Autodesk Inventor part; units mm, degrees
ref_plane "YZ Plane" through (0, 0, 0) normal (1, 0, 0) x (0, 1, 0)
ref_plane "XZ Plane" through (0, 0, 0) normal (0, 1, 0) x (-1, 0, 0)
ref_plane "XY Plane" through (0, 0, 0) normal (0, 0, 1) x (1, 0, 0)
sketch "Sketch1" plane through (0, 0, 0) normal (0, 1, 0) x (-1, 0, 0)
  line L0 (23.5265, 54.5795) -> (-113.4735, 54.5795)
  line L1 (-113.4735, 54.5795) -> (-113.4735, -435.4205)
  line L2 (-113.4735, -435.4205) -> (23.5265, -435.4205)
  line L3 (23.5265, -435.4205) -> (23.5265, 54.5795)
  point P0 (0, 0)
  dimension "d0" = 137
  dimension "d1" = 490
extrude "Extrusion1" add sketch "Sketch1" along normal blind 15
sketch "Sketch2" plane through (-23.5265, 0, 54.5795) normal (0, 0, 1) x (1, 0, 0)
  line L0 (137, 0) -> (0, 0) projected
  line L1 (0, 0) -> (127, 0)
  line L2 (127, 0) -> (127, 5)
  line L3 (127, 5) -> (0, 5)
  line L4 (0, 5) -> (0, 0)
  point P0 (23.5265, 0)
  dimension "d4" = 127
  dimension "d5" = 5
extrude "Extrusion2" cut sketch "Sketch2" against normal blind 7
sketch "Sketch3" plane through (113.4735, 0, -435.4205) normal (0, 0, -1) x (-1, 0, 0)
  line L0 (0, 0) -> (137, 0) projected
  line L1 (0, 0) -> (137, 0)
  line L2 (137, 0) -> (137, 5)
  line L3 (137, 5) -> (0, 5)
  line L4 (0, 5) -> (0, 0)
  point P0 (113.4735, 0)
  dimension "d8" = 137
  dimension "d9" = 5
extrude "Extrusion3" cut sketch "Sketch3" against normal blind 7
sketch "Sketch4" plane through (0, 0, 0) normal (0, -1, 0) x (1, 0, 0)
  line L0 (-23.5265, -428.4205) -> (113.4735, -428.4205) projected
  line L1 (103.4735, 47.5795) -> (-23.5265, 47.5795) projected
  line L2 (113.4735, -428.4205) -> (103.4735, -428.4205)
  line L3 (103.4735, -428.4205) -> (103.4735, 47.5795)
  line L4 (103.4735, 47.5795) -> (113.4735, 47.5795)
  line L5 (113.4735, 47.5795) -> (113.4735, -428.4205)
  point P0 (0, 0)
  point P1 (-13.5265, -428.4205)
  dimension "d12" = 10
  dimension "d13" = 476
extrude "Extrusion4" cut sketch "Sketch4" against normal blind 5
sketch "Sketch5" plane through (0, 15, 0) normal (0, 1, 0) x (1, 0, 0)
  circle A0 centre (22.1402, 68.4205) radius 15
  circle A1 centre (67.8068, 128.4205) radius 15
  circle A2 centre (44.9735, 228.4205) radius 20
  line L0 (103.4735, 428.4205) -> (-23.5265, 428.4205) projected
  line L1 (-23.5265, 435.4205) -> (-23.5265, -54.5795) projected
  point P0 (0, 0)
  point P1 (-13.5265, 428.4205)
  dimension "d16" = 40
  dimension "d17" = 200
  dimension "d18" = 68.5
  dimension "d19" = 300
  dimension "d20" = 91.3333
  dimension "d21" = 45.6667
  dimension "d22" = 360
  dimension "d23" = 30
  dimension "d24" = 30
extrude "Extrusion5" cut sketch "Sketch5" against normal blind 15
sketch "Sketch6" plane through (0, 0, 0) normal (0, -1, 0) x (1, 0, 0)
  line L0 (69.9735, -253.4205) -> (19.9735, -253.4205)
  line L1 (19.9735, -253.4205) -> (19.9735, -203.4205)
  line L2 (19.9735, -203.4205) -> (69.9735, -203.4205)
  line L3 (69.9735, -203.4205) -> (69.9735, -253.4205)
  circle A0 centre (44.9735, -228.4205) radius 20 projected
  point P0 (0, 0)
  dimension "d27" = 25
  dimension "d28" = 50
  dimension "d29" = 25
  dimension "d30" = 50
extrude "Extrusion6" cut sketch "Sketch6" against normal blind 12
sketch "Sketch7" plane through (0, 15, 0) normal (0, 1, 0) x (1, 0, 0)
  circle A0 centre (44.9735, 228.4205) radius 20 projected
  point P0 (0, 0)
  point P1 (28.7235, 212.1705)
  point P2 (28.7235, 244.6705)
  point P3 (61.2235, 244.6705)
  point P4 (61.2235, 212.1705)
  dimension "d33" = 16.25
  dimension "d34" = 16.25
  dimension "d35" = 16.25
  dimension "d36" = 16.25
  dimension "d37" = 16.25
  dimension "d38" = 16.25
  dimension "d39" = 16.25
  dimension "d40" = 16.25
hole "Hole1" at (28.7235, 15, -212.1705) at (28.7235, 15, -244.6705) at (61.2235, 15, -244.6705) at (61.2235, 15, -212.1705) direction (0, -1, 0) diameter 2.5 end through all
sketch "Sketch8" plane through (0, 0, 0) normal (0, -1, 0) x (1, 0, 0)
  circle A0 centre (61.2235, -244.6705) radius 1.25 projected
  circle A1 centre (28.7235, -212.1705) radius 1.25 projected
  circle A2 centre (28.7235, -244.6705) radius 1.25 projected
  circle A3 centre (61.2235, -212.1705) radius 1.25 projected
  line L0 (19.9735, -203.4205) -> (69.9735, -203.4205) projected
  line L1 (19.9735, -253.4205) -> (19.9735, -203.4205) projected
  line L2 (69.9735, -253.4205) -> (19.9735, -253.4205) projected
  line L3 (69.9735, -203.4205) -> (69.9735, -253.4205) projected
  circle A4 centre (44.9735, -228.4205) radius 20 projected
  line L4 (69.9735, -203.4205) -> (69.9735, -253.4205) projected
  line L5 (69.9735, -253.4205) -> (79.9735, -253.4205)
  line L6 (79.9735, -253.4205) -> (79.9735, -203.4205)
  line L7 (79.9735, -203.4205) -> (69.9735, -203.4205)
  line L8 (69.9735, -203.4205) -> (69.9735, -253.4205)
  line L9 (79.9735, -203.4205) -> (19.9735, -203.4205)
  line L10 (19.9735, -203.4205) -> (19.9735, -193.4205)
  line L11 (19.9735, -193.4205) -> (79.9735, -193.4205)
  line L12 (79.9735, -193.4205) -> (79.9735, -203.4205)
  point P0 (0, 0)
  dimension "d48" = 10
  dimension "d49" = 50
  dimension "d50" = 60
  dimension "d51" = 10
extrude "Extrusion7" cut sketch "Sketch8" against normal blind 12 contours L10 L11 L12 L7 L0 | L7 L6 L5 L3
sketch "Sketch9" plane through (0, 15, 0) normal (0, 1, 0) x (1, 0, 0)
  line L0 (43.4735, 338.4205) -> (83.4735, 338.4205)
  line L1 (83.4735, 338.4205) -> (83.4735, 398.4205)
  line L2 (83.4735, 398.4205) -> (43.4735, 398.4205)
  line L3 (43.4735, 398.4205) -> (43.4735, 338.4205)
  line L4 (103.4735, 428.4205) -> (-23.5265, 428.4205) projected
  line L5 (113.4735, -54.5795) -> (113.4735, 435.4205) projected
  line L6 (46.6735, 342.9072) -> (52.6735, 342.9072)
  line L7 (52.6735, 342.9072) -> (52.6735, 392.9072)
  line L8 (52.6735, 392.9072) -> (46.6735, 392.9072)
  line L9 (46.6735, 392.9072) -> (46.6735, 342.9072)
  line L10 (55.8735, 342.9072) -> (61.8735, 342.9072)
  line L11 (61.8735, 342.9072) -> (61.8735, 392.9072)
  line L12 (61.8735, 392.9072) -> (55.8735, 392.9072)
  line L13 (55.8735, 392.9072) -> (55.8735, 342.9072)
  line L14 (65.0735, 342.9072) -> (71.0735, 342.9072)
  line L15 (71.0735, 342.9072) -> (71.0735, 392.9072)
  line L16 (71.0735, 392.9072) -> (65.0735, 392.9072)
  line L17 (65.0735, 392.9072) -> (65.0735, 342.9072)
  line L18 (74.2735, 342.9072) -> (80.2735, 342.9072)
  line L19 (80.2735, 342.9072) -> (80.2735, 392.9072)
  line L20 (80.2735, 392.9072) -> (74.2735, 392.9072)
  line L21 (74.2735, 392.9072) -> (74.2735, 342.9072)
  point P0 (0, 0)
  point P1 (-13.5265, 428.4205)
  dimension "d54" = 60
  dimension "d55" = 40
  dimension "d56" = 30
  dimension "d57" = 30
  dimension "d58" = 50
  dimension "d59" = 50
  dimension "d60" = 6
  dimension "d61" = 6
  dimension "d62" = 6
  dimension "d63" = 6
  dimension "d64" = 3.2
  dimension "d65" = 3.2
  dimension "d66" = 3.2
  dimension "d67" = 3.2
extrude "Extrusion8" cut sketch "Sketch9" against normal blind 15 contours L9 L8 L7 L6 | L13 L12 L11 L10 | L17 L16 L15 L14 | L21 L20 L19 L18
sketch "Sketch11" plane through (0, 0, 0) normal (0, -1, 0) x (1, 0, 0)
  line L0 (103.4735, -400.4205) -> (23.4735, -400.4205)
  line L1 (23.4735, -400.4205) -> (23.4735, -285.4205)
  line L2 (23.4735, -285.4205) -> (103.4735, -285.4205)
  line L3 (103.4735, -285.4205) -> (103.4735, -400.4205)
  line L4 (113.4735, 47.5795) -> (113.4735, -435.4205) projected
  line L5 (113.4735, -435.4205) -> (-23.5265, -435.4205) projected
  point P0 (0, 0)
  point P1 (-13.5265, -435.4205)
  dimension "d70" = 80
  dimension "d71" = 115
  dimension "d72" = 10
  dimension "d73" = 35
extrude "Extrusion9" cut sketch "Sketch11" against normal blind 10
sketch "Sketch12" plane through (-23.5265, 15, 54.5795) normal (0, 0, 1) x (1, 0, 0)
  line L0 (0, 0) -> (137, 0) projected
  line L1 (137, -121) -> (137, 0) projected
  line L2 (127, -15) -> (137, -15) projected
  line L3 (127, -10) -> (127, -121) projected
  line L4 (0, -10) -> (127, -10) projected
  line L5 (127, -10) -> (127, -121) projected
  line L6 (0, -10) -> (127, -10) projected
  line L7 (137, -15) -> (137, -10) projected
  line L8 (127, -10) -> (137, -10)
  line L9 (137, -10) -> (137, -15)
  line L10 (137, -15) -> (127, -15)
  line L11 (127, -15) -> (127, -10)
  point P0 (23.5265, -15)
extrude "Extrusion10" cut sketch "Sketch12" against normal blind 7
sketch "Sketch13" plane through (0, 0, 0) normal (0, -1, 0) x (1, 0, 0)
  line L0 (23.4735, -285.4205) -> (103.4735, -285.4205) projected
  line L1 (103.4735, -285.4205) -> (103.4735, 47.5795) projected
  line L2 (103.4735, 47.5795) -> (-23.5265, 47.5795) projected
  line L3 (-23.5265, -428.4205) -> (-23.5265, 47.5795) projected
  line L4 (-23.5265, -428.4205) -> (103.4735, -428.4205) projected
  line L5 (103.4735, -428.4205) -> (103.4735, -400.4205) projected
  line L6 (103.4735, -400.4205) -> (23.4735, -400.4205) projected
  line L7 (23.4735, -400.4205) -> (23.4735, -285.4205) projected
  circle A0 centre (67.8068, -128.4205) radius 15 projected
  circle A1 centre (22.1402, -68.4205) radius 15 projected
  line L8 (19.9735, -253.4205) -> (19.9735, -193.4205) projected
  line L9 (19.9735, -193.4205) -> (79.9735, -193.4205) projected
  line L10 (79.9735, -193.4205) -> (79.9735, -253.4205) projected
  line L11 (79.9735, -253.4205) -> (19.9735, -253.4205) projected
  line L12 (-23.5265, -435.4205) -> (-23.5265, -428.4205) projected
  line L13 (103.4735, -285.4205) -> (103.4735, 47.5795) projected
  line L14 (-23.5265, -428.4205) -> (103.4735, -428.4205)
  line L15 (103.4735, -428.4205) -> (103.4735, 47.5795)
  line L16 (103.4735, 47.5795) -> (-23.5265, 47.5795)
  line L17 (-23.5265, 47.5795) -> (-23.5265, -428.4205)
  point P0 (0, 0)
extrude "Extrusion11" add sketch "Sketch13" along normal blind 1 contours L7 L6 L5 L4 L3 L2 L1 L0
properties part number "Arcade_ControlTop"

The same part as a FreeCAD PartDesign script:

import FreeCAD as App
import Part
import Sketcher
from FreeCAD import Vector

doc = App.newDocument("Part")
body = doc.addObject("PartDesign::Body", "Body")

# Sketch on XZ plane
sketch1 = body.newObject("Sketcher::SketchObject", "Sketch")
sketch1.AttachmentSupport = (doc.getObject("XZ_Plane"), [""])
sketch1.MapMode = "FlatFace"
sketch1.addGeometry([
    Part.LineSegment(Vector(-24, -435, 0), Vector(-24, 55, 0)),
    Part.LineSegment(Vector(-24, 55, 0), Vector(113, 55, 0)),
    Part.LineSegment(Vector(113, 55, 0), Vector(113, -435, 0)),
    Part.LineSegment(Vector(113, -435, 0), Vector(-24, -435, 0)),
], False)
sketch1.addConstraint([
    Sketcher.Constraint("Coincident", 0, 2, 1, 1),
    Sketcher.Constraint("Coincident", 1, 2, 2, 1),
    Sketcher.Constraint("Coincident", 2, 2, 3, 1),
    Sketcher.Constraint("Coincident", 3, 2, 0, 1),
    Sketcher.Constraint("Vertical", 0),
    Sketcher.Constraint("Horizontal", 1),
    Sketcher.Constraint("Vertical", 2),
    Sketcher.Constraint("Horizontal", 3),
    Sketcher.Constraint("DistanceX", 1, 1, 1, 2, 137.0),
    Sketcher.Constraint("DistanceY", 0, 1, 0, 2, 490.0),
    Sketcher.Constraint("DistanceX", 0, 2, -1, 1, 23.5265),
    Sketcher.Constraint("DistanceY", -1, 1, 0, 2, 54.5795),
])
pad1 = body.newObject("PartDesign::Pad", "Pad")
pad1.Profile = sketch1
pad1.Length = 15
pad1.Reversed = True

# Sketch on XY plane
sketch2 = body.newObject("Sketcher::SketchObject", "Sketch001")
sketch2.AttachmentSupport = (doc.getObject("XY_Plane"), [""])
sketch2.MapMode = "FlatFace"
sketch2.AttachmentOffset = App.Placement(Vector(0, 0, 54.5795), App.Rotation())
sketch2.addGeometry([
    Part.LineSegment(Vector(-24, 0, 0), Vector(103, 0, 0)),
    Part.LineSegment(Vector(103, 0, 0), Vector(103, 5, 0)),
    Part.LineSegment(Vector(103, 5, 0), Vector(-24, 5, 0)),
    Part.LineSegment(Vector(-24, 5, 0), Vector(-24, 0, 0)),
], False)
sketch2.addConstraint([
    Sketcher.Constraint("Coincident", 0, 2, 1, 1),
    Sketcher.Constraint("Coincident", 1, 2, 2, 1),
    Sketcher.Constraint("Coincident", 2, 2, 3, 1),
    Sketcher.Constraint("Coincident", 3, 2, 0, 1),
    Sketcher.Constraint("Horizontal", 0),
    Sketcher.Constraint("Vertical", 1),
    Sketcher.Constraint("Horizontal", 2),
    Sketcher.Constraint("Vertical", 3),
    Sketcher.Constraint("PointOnObject", 0, 2, -1),
    Sketcher.Constraint("DistanceX", 0, 1, 0, 2, 127.0),
    Sketcher.Constraint("DistanceY", 1, 1, 1, 2, 5.0),
    Sketcher.Constraint("DistanceX", -1, 1, 0, 2, 103.4735),
])
pocket1 = body.newObject("PartDesign::Pocket", "Pocket")
pocket1.Profile = sketch2
pocket1.Length = 7

# Sketch on XY plane
sketch3 = body.newObject("Sketcher::SketchObject", "Sketch002")
sketch3.AttachmentSupport = (doc.getObject("XY_Plane"), [""])
sketch3.MapMode = "FlatFace"
sketch3.AttachmentOffset = App.Placement(Vector(0, 0, -435.4205), App.Rotation())
sketch3.addGeometry([
    Part.LineSegment(Vector(113, 5, 0), Vector(113, 0, 0)),
    Part.LineSegment(Vector(113, 0, 0), Vector(-24, 0, 0)),
    Part.LineSegment(Vector(-24, 0, 0), Vector(-24, 5, 0)),
    Part.LineSegment(Vector(-24, 5, 0), Vector(113, 5, 0)),
], False)
sketch3.addConstraint([
    Sketcher.Constraint("Coincident", 0, 2, 1, 1),
    Sketcher.Constraint("Coincident", 1, 2, 2, 1),
    Sketcher.Constraint("Coincident", 2, 2, 3, 1),
    Sketcher.Constraint("Coincident", 3, 2, 0, 1),
    Sketcher.Constraint("Vertical", 0),
    Sketcher.Constraint("Horizontal", 1),
    Sketcher.Constraint("Vertical", 2),
    Sketcher.Constraint("Horizontal", 3),
    Sketcher.Constraint("PointOnObject", 0, 2, -1),
    Sketcher.Constraint("DistanceX", 1, 2, 1, 1, 137.0),
    Sketcher.Constraint("DistanceY", 0, 2, 0, 1, 5.0),
    Sketcher.Constraint("DistanceX", -1, 1, 0, 2, 113.4735),
])
pocket2 = body.newObject("PartDesign::Pocket", "Pocket001")
pocket2.Profile = sketch3
pocket2.Length = 7
pocket2.Reversed = True

# Sketch on XZ plane
sketch4 = body.newObject("Sketcher::SketchObject", "Sketch003")
sketch4.AttachmentSupport = (doc.getObject("XZ_Plane"), [""])
sketch4.MapMode = "FlatFace"
sketch4.addGeometry([
    Part.LineSegment(Vector(103, 48, 0), Vector(103, -428, 0)),
    Part.LineSegment(Vector(103, -428, 0), Vector(113, -428, 0)),
    Part.LineSegment(Vector(113, -428, 0), Vector(113, 48, 0)),
    Part.LineSegment(Vector(113, 48, 0), Vector(103, 48, 0)),
], False)
sketch4.addConstraint([
    Sketcher.Constraint("Coincident", 0, 2, 1, 1),
    Sketcher.Constraint("Coincident", 1, 2, 2, 1),
    Sketcher.Constraint("Coincident", 2, 2, 3, 1),
    Sketcher.Constraint("Coincident", 3, 2, 0, 1),
    Sketcher.Constraint("Vertical", 0),
    Sketcher.Constraint("Horizontal", 1),
    Sketcher.Constraint("Vertical", 2),
    Sketcher.Constraint("Horizontal", 3),
    Sketcher.Constraint("DistanceX", 1, 1, 1, 2, 10.0),
    Sketcher.Constraint("DistanceY", 0, 2, 0, 1, 476.0),
    Sketcher.Constraint("DistanceX", -1, 1, 0, 2, 103.4735),
    Sketcher.Constraint("DistanceY", 0, 2, -1, 1, 428.4205),
])
pocket3 = body.newObject("PartDesign::Pocket", "Pocket002")
pocket3.Profile = sketch4
pocket3.Length = 5

# Sketch on XZ plane
sketch5 = body.newObject("Sketcher::SketchObject", "Sketch004")
sketch5.AttachmentSupport = (doc.getObject("XZ_Plane"), [""])
sketch5.MapMode = "FlatFace"
sketch5.AttachmentOffset = App.Placement(Vector(0, 0, -15), App.Rotation())
sketch5.addGeometry([
    Part.Circle(Vector(22, -68, 0), Vector(0, 0, 1), 15),
    Part.Circle(Vector(68, -128, 0), Vector(0, 0, 1), 15),
    Part.Circle(Vector(45, -228, 0), Vector(0, 0, 1), 20),
], False)
sketch5.addConstraint([
    Sketcher.Constraint("Equal", 0, 1),
    Sketcher.Constraint("Diameter", 0, 30.0),
    Sketcher.Constraint("Diameter", 2, 40.0),
    Sketcher.Constraint("DistanceY", 1, 3, 0, 3, 60.0),
    Sketcher.Constraint("DistanceY", 2, 3, 1, 3, 100.0),
    Sketcher.Constraint("DistanceX", 0, 3, 1, 3, 45.6666),
    Sketcher.Constraint("DistanceX", -1, 1, 0, 3, 22.1402),
    Sketcher.Constraint("DistanceY", 0, 3, -1, 1, 68.4205),
    Sketcher.Constraint("DistanceX", -1, 1, 2, 3, 44.9735),
])
pocket4 = body.newObject("PartDesign::Pocket", "Pocket003")
pocket4.Profile = sketch5
pocket4.Length = 15
pocket4.Reversed = True

# Sketch on XZ plane
sketch6 = body.newObject("Sketcher::SketchObject", "Sketch005")
sketch6.AttachmentSupport = (doc.getObject("XZ_Plane"), [""])
sketch6.MapMode = "FlatFace"
sketch6.addGeometry([
    Part.LineSegment(Vector(20, -253, 0), Vector(70, -253, 0)),  # 0
    Part.LineSegment(Vector(70, -253, 0), Vector(70, -203, 0)),  # 1
    Part.LineSegment(Vector(70, -203, 0), Vector(20, -203, 0)),  # 2
    Part.LineSegment(Vector(20, -203, 0), Vector(20, -253, 0)),  # 3
    Part.Circle(Vector(45, -228, 0), Vector(0, 0, 1), 20),  # 4
], False)
sketch6.addConstraint([
    Sketcher.Constraint("Coincident", 0, 2, 1, 1),
    Sketcher.Constraint("Coincident", 1, 2, 2, 1),
    Sketcher.Constraint("Coincident", 2, 2, 3, 1),
    Sketcher.Constraint("Coincident", 3, 2, 0, 1),
    Sketcher.Constraint("Horizontal", 0),
    Sketcher.Constraint("Vertical", 1),
    Sketcher.Constraint("Horizontal", 2),
    Sketcher.Constraint("Vertical", 3),
    Sketcher.Constraint("Equal", 2, 1),
    Sketcher.Constraint("DistanceX", 0, 1, 0, 2, 50.0),
    Sketcher.Constraint("Diameter", 4, 40.0),
    Sketcher.Constraint("DistanceX", 4, 3, 0, 2, 25.0),
    Sketcher.Constraint("DistanceY", 0, 2, 4, 3, 25.0),
    Sketcher.Constraint("DistanceX", -1, 1, 4, 3, 44.9735),
    Sketcher.Constraint("DistanceY", 4, 3, -1, 1, 228.4205),
])
pocket5 = body.newObject("PartDesign::Pocket", "Pocket004")
pocket5.Profile = sketch6
pocket5.Length = 12

# Sketch on XZ plane
sketch7 = body.newObject("Sketcher::SketchObject", "Sketch006")
sketch7.AttachmentSupport = (doc.getObject("XZ_Plane"), [""])
sketch7.MapMode = "FlatFace"
sketch7.AttachmentOffset = App.Placement(Vector(0, 0, -15), App.Rotation())
sketch7.addGeometry([
    Part.Circle(Vector(28.7, -212.2, 0), Vector(0, 0, 1), 1.2),
    Part.Circle(Vector(28.7, -244.7, 0), Vector(0, 0, 1), 1.2),
    Part.Circle(Vector(61.2, -244.7, 0), Vector(0, 0, 1), 1.2),
    Part.Circle(Vector(61.2, -212.2, 0), Vector(0, 0, 1), 1.2),
], False)
sketch7.addConstraint([
    Sketcher.Constraint("Equal", 0, 1),
    Sketcher.Constraint("Equal", 1, 2),
    Sketcher.Constraint("Equal", 2, 3),
    Sketcher.Constraint("Horizontal", 1, 3, 2, 3),
    Sketcher.Constraint("Horizontal", 0, 3, 3, 3),
    Sketcher.Constraint("Vertical", 0, 3, 1, 3),
    Sketcher.Constraint("Vertical", 2, 3, 3, 3),
    Sketcher.Constraint("Diameter", 0, 2.5),
    Sketcher.Constraint("DistanceY", 1, 3, 0, 3, 32.5),
    Sketcher.Constraint("DistanceX", 1, 3, 2, 3, 32.5),
    Sketcher.Constraint("DistanceX", -1, 1, 0, 3, 28.7235),
    Sketcher.Constraint("DistanceY", 0, 3, -1, 1, 212.1705),
])
doc.recompute()
hole = body.newObject("PartDesign::Hole", "Hole")
hole.Profile = sketch7
hole.ThreadType = "None"
hole.Diameter = 2.5
hole.DepthType = "ThroughAll"
hole.Reversed = True

# Sketch on XZ plane
sketch8 = body.newObject("Sketcher::SketchObject", "Sketch007")
sketch8.AttachmentSupport = (doc.getObject("XZ_Plane"), [""])
sketch8.MapMode = "FlatFace"
sketch8.addGeometry([
    Part.LineSegment(Vector(20, -193, 0), Vector(20, -203, 0)),  # 0
    Part.LineSegment(Vector(20, -203, 0), Vector(70, -203, 0)),  # 1
    Part.LineSegment(Vector(70, -203, 0), Vector(70, -253, 0)),  # 2
    Part.LineSegment(Vector(70, -253, 0), Vector(80, -253, 0)),  # 3
    Part.LineSegment(Vector(80, -253, 0), Vector(80, -193, 0)),  # 4
    Part.LineSegment(Vector(80, -193, 0), Vector(20, -193, 0)),  # 5
], False)
sketch8.addConstraint([
    Sketcher.Constraint("Coincident", 0, 2, 1, 1),
    Sketcher.Constraint("Coincident", 1, 2, 2, 1),
    Sketcher.Constraint("Coincident", 2, 2, 3, 1),
    Sketcher.Constraint("Coincident", 3, 2, 4, 1),
    Sketcher.Constraint("Coincident", 4, 2, 5, 1),
    Sketcher.Constraint("Coincident", 5, 2, 0, 1),
    Sketcher.Constraint("Vertical", 0),
    Sketcher.Constraint("Horizontal", 1),
    Sketcher.Constraint("Vertical", 2),
    Sketcher.Constraint("Horizontal", 3),
    Sketcher.Constraint("Vertical", 4),
    Sketcher.Constraint("Horizontal", 5),
    Sketcher.Constraint("Equal", 3, 0),
    Sketcher.Constraint("Equal", 1, 2),
    Sketcher.Constraint("DistanceX", 1, 1, 1, 2, 50.0),
    Sketcher.Constraint("DistanceX", 3, 1, 3, 2, 10.0),
    Sketcher.Constraint("DistanceX", -1, 1, 0, 2, 19.9735),
    Sketcher.Constraint("DistanceY", 0, 2, -1, 1, 203.4205),
])
pocket6 = body.newObject("PartDesign::Pocket", "Pocket005")
pocket6.Profile = sketch8
pocket6.Length = 12

# Sketch on XZ plane
sketch9 = body.newObject("Sketcher::SketchObject", "Sketch008")
sketch9.AttachmentSupport = (doc.getObject("XZ_Plane"), [""])
sketch9.MapMode = "FlatFace"
sketch9.AttachmentOffset = App.Placement(Vector(0, 0, -15), App.Rotation())
sketch9.addGeometry([
    Part.LineSegment(Vector(47, -393, 0), Vector(47, -343, 0)),  # 0
    Part.LineSegment(Vector(47, -343, 0), Vector(53, -343, 0)),  # 1
    Part.LineSegment(Vector(53, -343, 0), Vector(53, -393, 0)),  # 2
    Part.LineSegment(Vector(53, -393, 0), Vector(47, -393, 0)),  # 3
    Part.LineSegment(Vector(56, -393, 0), Vector(56, -343, 0)),  # 4
    Part.LineSegment(Vector(56, -343, 0), Vector(62, -343, 0)),  # 5
    Part.LineSegment(Vector(62, -343, 0), Vector(62, -393, 0)),  # 6
    Part.LineSegment(Vector(62, -393, 0), Vector(56, -393, 0)),  # 7
    Part.LineSegment(Vector(65, -393, 0), Vector(65, -343, 0)),  # 8
    Part.LineSegment(Vector(65, -343, 0), Vector(71, -343, 0)),  # 9
    Part.LineSegment(Vector(71, -343, 0), Vector(71, -393, 0)),  # 10
    Part.LineSegment(Vector(71, -393, 0), Vector(65, -393, 0)),  # 11
    Part.LineSegment(Vector(74, -393, 0), Vector(74, -343, 0)),  # 12
    Part.LineSegment(Vector(74, -343, 0), Vector(80, -343, 0)),  # 13
    Part.LineSegment(Vector(80, -343, 0), Vector(80, -393, 0)),  # 14
    Part.LineSegment(Vector(80, -393, 0), Vector(74, -393, 0)),  # 15
], False)
sketch9.addConstraint([
    Sketcher.Constraint("Coincident", 0, 2, 1, 1),
    Sketcher.Constraint("Coincident", 1, 2, 2, 1),
    Sketcher.Constraint("Coincident", 2, 2, 3, 1),
    Sketcher.Constraint("Coincident", 3, 2, 0, 1),
    Sketcher.Constraint("Coincident", 4, 2, 5, 1),
    Sketcher.Constraint("Coincident", 5, 2, 6, 1),
    Sketcher.Constraint("Coincident", 6, 2, 7, 1),
    Sketcher.Constraint("Coincident", 7, 2, 4, 1),
    Sketcher.Constraint("Coincident", 8, 2, 9, 1),
    Sketcher.Constraint("Coincident", 9, 2, 10, 1),
    Sketcher.Constraint("Coincident", 10, 2, 11, 1),
    Sketcher.Constraint("Coincident", 11, 2, 8, 1),
    Sketcher.Constraint("Coincident", 12, 2, 13, 1),
    Sketcher.Constraint("Coincident", 13, 2, 14, 1),
    Sketcher.Constraint("Coincident", 14, 2, 15, 1),
    Sketcher.Constraint("Coincident", 15, 2, 12, 1),
    Sketcher.Constraint("Vertical", 0),
    Sketcher.Constraint("Horizontal", 1),
    Sketcher.Constraint("Vertical", 2),
    Sketcher.Constraint("Horizontal", 3),
    Sketcher.Constraint("Vertical", 4),
    Sketcher.Constraint("Horizontal", 5),
    Sketcher.Constraint("Vertical", 6),
    Sketcher.Constraint("Horizontal", 7),
    Sketcher.Constraint("Vertical", 8),
    Sketcher.Constraint("Horizontal", 9),
    Sketcher.Constraint("Vertical", 10),
    Sketcher.Constraint("Horizontal", 11),
    Sketcher.Constraint("Vertical", 12),
    Sketcher.Constraint("Horizontal", 13),
    Sketcher.Constraint("Vertical", 14),
    Sketcher.Constraint("Horizontal", 15),
    Sketcher.Constraint("Horizontal", 1, 2, 4, 2),
    Sketcher.Constraint("Horizontal", 3, 2, 6, 2),
    Sketcher.Constraint("Horizontal", 5, 2, 8, 2),
    Sketcher.Constraint("Horizontal", 7, 2, 10, 2),
    Sketcher.Constraint("Horizontal", 9, 2, 12, 2),
    Sketcher.Constraint("Horizontal", 11, 2, 14, 2),
    Sketcher.Constraint("Equal", 3, 5),
    Sketcher.Constraint("Equal", 7, 9),
    Sketcher.Constraint("Equal", 11, 13),
    Sketcher.Constraint("DistanceX", 1, 1, 1, 2, 6.0),
    Sketcher.Constraint("DistanceY", 0, 1, 0, 2, 50.0),
    Sketcher.Constraint("DistanceX", 1, 2, 4, 2, 3.2),
    Sketcher.Constraint("DistanceX", 5, 2, 8, 2, 3.2),
    Sketcher.Constraint("DistanceX", 9, 2, 12, 2, 3.2),
    Sketcher.Constraint("DistanceX", -1, 1, 0, 2, 46.6735),
    Sketcher.Constraint("DistanceY", 0, 2, -1, 1, 342.9072),
])
pocket7 = body.newObject("PartDesign::Pocket", "Pocket006")
pocket7.Profile = sketch9
pocket7.Length = 15
pocket7.Reversed = True

# Sketch on XZ plane
sketch10 = body.newObject("Sketcher::SketchObject", "Sketch009")
sketch10.AttachmentSupport = (doc.getObject("XZ_Plane"), [""])
sketch10.MapMode = "FlatFace"
sketch10.addGeometry([
    Part.LineSegment(Vector(23, -400, 0), Vector(103, -400, 0)),
    Part.LineSegment(Vector(103, -400, 0), Vector(103, -285, 0)),
    Part.LineSegment(Vector(103, -285, 0), Vector(23, -285, 0)),
    Part.LineSegment(Vector(23, -285, 0), Vector(23, -400, 0)),
], False)
sketch10.addConstraint([
    Sketcher.Constraint("Coincident", 0, 2, 1, 1),
    Sketcher.Constraint("Coincident", 1, 2, 2, 1),
    Sketcher.Constraint("Coincident", 2, 2, 3, 1),
    Sketcher.Constraint("Coincident", 3, 2, 0, 1),
    Sketcher.Constraint("Horizontal", 0),
    Sketcher.Constraint("Vertical", 1),
    Sketcher.Constraint("Horizontal", 2),
    Sketcher.Constraint("Vertical", 3),
    Sketcher.Constraint("DistanceX", 0, 1, 0, 2, 80.0),
    Sketcher.Constraint("DistanceY", 1, 1, 1, 2, 115.0),
    Sketcher.Constraint("DistanceX", -1, 1, 0, 2, 103.4735),
    Sketcher.Constraint("DistanceY", 0, 2, -1, 1, 400.4205),
])
pocket8 = body.newObject("PartDesign::Pocket", "Pocket007")
pocket8.Profile = sketch10
pocket8.Length = 10

# Sketch on XY plane
sketch11 = body.newObject("Sketcher::SketchObject", "Sketch010")
sketch11.AttachmentSupport = (doc.getObject("XY_Plane"), [""])
sketch11.MapMode = "FlatFace"
sketch11.AttachmentOffset = App.Placement(Vector(0, 0, 54.5795), App.Rotation())
sketch11.addGeometry([
    Part.LineSegment(Vector(103, 0, 0), Vector(113, 0, 0)),
    Part.LineSegment(Vector(113, 0, 0), Vector(113, 5, 0)),
    Part.LineSegment(Vector(113, 5, 0), Vector(103, 5, 0)),
    Part.LineSegment(Vector(103, 5, 0), Vector(103, 0, 0)),
], False)
sketch11.addConstraint([
    Sketcher.Constraint("Coincident", 0, 2, 1, 1),
    Sketcher.Constraint("Coincident", 1, 2, 2, 1),
    Sketcher.Constraint("Coincident", 2, 2, 3, 1),
    Sketcher.Constraint("Coincident", 3, 2, 0, 1),
    Sketcher.Constraint("Horizontal", 0),
    Sketcher.Constraint("Vertical", 1),
    Sketcher.Constraint("Horizontal", 2),
    Sketcher.Constraint("Vertical", 3),
    Sketcher.Constraint("PointOnObject", 0, 2, -1),
    Sketcher.Constraint("DistanceX", 0, 1, 0, 2, 10.0),
    Sketcher.Constraint("DistanceY", 1, 1, 1, 2, 5.0),
    Sketcher.Constraint("DistanceX", -1, 1, 0, 2, 113.4735),
])
pocket9 = body.newObject("PartDesign::Pocket", "Pocket008")
pocket9.Profile = sketch11
pocket9.Length = 7

# Sketch on XZ plane
sketch12 = body.newObject("Sketcher::SketchObject", "Sketch011")
sketch12.AttachmentSupport = (doc.getObject("XZ_Plane"), [""])
sketch12.MapMode = "FlatFace"
sketch12.addGeometry([
    Part.LineSegment(Vector(23, -400, 0), Vector(23, -285, 0)),  # 0
    Part.LineSegment(Vector(23, -285, 0), Vector(103, -285, 0)),  # 1
    Part.LineSegment(Vector(103, -285, 0), Vector(103, 48, 0)),  # 2
    Part.LineSegment(Vector(103, 48, 0), Vector(-24, 48, 0)),  # 3
    Part.LineSegment(Vector(-24, 48, 0), Vector(-24, -428, 0)),  # 4
    Part.LineSegment(Vector(-24, -428, 0), Vector(103, -428, 0)),  # 5
    Part.LineSegment(Vector(103, -428, 0), Vector(103, -400, 0)),  # 6
    Part.LineSegment(Vector(103, -400, 0), Vector(23, -400, 0)),  # 7
    Part.LineSegment(Vector(80, -253, 0), Vector(20, -253, 0)),  # 8
    Part.LineSegment(Vector(20, -253, 0), Vector(20, -193, 0)),  # 9
    Part.LineSegment(Vector(20, -193, 0), Vector(80, -193, 0)),  # 10
    Part.LineSegment(Vector(80, -193, 0), Vector(80, -253, 0)),  # 11
    Part.Circle(Vector(22, -68, 0), Vector(0, 0, 1), 15),  # 12
    Part.Circle(Vector(68, -128, 0), Vector(0, 0, 1), 15),  # 13
], False)
sketch12.addConstraint([
    Sketcher.Constraint("Coincident", 0, 2, 1, 1),
    Sketcher.Constraint("Coincident", 1, 2, 2, 1),
    Sketcher.Constraint("Coincident", 2, 2, 3, 1),
    Sketcher.Constraint("Coincident", 3, 2, 4, 1),
    Sketcher.Constraint("Coincident", 4, 2, 5, 1),
    Sketcher.Constraint("Coincident", 5, 2, 6, 1),
    Sketcher.Constraint("Coincident", 6, 2, 7, 1),
    Sketcher.Constraint("Coincident", 7, 2, 0, 1),
    Sketcher.Constraint("Coincident", 8, 2, 9, 1),
    Sketcher.Constraint("Coincident", 9, 2, 10, 1),
    Sketcher.Constraint("Coincident", 10, 2, 11, 1),
    Sketcher.Constraint("Coincident", 11, 2, 8, 1),
    Sketcher.Constraint("Vertical", 0),
    Sketcher.Constraint("Horizontal", 1),
    Sketcher.Constraint("Vertical", 2),
    Sketcher.Constraint("Horizontal", 3),
    Sketcher.Constraint("Vertical", 4),
    Sketcher.Constraint("Horizontal", 5),
    Sketcher.Constraint("Vertical", 6),
    Sketcher.Constraint("Horizontal", 7),
    Sketcher.Constraint("Horizontal", 8),
    Sketcher.Constraint("Vertical", 9),
    Sketcher.Constraint("Horizontal", 10),
    Sketcher.Constraint("Vertical", 11),
    Sketcher.Constraint("Equal", 12, 13),
    Sketcher.Constraint("Vertical", 2, 2, 5, 2),
    Sketcher.Constraint("Equal", 10, 9),
    Sketcher.Constraint("Diameter", 12, 30.0),
    Sketcher.Constraint("DistanceX", 1, 1, 1, 2, 80.0),
    Sketcher.Constraint("DistanceX", 3, 2, 3, 1, 127.0),
    Sketcher.Constraint("DistanceX", 8, 2, 8, 1, 60.0),
    Sketcher.Constraint("DistanceY", 0, 1, 0, 2, 115.0),
    Sketcher.Constraint("DistanceY", 2, 1, 2, 2, 333.0),
    Sketcher.Constraint("DistanceY", 4, 2, 4, 1, 476.0),
    Sketcher.Constraint("DistanceY", 13, 3, 12, 3, 60.0),
    Sketcher.Constraint("DistanceY", 0, 2, 13, 3, 157.0),
    Sketcher.Constraint("DistanceY", 0, 2, 8, 2, 32.0),
    Sketcher.Constraint("DistanceX", 8, 2, 0, 2, 3.5),
    Sketcher.Constraint("DistanceX", -1, 1, 12, 3, 22.1402),
    Sketcher.Constraint("DistanceY", 12, 3, -1, 1, 68.4205),
    Sketcher.Constraint("DistanceX", -1, 1, 13, 3, 67.8068),
    Sketcher.Constraint("DistanceX", -1, 1, 0, 2, 23.4735),
])
pad2 = body.newObject("PartDesign::Pad", "Pad001")
pad2.Profile = sketch12
pad2.Length = 1

doc.recompute()
